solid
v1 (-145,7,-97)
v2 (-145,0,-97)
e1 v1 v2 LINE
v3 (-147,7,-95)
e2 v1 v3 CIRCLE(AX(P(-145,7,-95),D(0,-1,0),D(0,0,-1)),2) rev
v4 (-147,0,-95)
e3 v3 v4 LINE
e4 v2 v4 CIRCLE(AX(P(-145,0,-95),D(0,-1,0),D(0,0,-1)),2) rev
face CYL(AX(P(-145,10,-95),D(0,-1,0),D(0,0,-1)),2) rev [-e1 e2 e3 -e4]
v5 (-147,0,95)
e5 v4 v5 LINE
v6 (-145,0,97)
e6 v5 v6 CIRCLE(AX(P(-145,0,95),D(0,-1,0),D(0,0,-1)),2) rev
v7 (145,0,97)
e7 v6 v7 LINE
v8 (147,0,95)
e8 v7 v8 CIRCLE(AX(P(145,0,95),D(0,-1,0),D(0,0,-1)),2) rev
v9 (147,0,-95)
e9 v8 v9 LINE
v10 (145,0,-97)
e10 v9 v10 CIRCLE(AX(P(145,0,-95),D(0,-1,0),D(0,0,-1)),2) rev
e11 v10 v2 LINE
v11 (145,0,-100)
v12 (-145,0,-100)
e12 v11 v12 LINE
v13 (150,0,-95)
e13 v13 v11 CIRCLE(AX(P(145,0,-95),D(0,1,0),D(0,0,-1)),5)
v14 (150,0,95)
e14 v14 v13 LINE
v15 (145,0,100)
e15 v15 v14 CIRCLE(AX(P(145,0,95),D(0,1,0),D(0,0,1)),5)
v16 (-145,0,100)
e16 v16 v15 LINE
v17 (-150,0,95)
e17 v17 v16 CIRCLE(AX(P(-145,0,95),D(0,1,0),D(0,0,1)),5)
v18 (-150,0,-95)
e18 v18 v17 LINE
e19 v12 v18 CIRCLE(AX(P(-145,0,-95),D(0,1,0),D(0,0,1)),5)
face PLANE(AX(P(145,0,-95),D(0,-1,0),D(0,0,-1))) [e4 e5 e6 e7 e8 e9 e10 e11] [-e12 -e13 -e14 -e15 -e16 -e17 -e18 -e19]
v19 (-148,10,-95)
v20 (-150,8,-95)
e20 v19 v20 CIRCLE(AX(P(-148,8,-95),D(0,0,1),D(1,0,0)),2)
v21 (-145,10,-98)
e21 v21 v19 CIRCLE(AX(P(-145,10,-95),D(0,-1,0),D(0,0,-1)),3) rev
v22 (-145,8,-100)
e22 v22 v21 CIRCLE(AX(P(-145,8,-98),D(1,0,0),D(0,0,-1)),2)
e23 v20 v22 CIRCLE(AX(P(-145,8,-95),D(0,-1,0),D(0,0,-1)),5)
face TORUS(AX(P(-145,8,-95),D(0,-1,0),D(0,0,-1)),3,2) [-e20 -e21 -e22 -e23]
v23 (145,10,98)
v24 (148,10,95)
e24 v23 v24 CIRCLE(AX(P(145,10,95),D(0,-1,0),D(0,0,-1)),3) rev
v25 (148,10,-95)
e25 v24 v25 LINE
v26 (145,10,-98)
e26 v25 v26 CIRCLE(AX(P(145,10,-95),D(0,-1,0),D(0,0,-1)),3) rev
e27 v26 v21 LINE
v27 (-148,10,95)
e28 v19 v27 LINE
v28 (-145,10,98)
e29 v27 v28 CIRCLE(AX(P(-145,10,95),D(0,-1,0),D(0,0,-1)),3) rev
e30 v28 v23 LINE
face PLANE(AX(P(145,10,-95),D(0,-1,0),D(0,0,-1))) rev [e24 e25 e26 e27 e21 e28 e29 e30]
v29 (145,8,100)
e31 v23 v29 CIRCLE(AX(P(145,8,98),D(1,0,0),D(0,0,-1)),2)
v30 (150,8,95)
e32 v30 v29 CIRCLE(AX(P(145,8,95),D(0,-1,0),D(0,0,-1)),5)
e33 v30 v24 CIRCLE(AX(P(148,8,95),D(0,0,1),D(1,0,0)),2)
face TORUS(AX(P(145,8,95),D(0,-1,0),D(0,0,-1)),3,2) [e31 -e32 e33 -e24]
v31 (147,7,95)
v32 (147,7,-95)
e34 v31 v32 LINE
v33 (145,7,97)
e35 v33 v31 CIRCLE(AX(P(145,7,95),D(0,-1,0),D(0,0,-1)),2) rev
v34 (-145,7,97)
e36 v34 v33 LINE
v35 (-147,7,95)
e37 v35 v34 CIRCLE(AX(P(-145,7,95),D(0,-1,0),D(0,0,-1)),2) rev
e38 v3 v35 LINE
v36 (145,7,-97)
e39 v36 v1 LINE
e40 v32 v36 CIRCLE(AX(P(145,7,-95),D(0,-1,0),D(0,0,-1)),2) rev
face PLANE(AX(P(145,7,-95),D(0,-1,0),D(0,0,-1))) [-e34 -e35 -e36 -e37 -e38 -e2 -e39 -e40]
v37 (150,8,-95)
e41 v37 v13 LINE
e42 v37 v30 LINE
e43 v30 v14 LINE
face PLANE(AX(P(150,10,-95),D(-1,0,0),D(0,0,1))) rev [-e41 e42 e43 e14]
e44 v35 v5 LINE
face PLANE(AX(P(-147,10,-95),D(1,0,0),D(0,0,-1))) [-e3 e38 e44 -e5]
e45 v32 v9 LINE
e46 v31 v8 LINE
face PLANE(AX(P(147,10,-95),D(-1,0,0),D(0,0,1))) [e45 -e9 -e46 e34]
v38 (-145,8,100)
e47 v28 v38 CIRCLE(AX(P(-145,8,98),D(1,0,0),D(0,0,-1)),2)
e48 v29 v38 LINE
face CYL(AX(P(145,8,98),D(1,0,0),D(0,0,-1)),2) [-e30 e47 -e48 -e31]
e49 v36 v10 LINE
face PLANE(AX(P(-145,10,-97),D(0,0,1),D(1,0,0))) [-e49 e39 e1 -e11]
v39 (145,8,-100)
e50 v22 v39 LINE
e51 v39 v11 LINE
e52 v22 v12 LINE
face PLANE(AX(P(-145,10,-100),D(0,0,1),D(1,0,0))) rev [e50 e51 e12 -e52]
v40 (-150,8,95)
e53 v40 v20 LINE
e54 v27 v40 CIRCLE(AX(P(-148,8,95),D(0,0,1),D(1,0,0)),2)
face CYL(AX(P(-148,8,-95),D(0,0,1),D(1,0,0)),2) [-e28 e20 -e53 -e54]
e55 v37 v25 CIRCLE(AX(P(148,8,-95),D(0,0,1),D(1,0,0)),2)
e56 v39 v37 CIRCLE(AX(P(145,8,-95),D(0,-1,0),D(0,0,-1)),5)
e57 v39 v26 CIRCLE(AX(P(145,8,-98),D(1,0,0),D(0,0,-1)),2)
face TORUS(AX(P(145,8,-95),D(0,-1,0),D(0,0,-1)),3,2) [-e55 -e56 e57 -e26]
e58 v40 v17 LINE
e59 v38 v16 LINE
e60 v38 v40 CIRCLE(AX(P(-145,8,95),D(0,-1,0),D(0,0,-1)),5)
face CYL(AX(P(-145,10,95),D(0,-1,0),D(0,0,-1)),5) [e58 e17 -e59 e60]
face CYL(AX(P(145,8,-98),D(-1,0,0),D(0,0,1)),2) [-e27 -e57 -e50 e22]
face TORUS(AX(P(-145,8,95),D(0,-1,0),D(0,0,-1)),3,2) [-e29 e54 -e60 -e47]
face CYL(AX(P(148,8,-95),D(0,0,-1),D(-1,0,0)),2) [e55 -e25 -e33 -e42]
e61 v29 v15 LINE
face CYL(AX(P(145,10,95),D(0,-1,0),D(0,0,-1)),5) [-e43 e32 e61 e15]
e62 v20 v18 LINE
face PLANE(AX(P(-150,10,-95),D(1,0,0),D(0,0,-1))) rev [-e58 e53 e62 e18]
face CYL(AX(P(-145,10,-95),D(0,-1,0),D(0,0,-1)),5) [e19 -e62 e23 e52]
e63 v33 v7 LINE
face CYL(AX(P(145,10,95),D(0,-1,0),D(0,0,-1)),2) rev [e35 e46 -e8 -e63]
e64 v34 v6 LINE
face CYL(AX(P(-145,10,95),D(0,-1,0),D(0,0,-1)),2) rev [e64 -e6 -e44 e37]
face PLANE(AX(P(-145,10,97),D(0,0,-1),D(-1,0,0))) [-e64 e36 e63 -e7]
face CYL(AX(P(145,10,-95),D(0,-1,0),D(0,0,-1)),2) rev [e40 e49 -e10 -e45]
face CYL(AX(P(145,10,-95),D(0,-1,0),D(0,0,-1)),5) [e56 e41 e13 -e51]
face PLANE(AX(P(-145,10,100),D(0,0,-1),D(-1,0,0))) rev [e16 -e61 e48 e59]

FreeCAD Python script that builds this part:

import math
import FreeCAD as App
import Part
import Sketcher

V = App.Vector


def edges_at(feature, points):
    """Names of the edges that pass closest to the given points."""
    edges = feature.Shape.Edges
    near = lambda p: min(range(len(edges)), key=lambda i: edges[i].distToShape(Part.Vertex(*p))[0])
    return sorted({f"Edge{near(p) + 1}" for p in points})


def faces_at(feature, points):
    """Names of the faces that lie closest to the given points."""
    faces = feature.Shape.Faces
    near = lambda p: min(range(len(faces)), key=lambda i: faces[i].distToShape(Part.Vertex(*p))[0])
    return sorted({f"Face{near(p) + 1}" for p in points})

doc = App.newDocument("Part")
params = doc.addObject("Spreadsheet::Sheet", "Params")
for row, (alias, value) in enumerate([
    ("sketch1_radius", "5 mm"),
    ("sketch1_width", "290 mm"),
    ("sketch1_height", "190 mm"),
    ("pad1_length", "10 mm"),
    ("thickness_wall", "3 mm"),
    ("fillet_radius", "2 mm"),
], start=1):
    params.set(f"A{row}", alias)
    params.set(f"B{row}", "=" + value)
    params.setAlias(f"B{row}", alias)

body = doc.addObject("PartDesign::Body", "Body")

# Sketch on XZ plane
sketch1 = doc.addObject("Sketcher::SketchObject", "Sketch")
body.addObject(sketch1)
sketch1.AttachmentSupport = (doc.XZ_Plane, [""])
sketch1.MapMode = "FlatFace"
sketch1.addGeometry(Part.LineSegment(V(145, -100, 0), V(-145, -100, 0)), False)
sketch1.addGeometry(Part.ArcOfCircle(Part.Circle(V(-145, -95, 0), V(0, 0, 1), 5), math.radians(180), math.radians(270)), False)
sketch1.addGeometry(Part.LineSegment(V(-150, -95, 0), V(-150, 95, 0)), False)
sketch1.addGeometry(Part.ArcOfCircle(Part.Circle(V(-145, 95, 0), V(0, 0, 1), 5), math.radians(90), math.radians(180)), False)
sketch1.addGeometry(Part.LineSegment(V(-145, 100, 0), V(145, 100, 0)), False)
sketch1.addGeometry(Part.ArcOfCircle(Part.Circle(V(145, 95, 0), V(0, 0, 1), 5), math.radians(0), math.radians(90)), False)
sketch1.addGeometry(Part.LineSegment(V(150, 95, 0), V(150, -95, 0)), False)
sketch1.addGeometry(Part.ArcOfCircle(Part.Circle(V(145, -95, 0), V(0, 0, 1), 5), math.radians(-90), math.radians(0)), False)
sketch1.addConstraint(Sketcher.Constraint("Tangent", 0, 2, 1, 2))
sketch1.addConstraint(Sketcher.Constraint("Tangent", 1, 1, 2, 1))
sketch1.addConstraint(Sketcher.Constraint("Tangent", 2, 2, 3, 2))
sketch1.addConstraint(Sketcher.Constraint("Tangent", 3, 1, 4, 1))
sketch1.addConstraint(Sketcher.Constraint("Tangent", 4, 2, 5, 2))
sketch1.addConstraint(Sketcher.Constraint("Tangent", 5, 1, 6, 1))
sketch1.addConstraint(Sketcher.Constraint("Tangent", 6, 2, 7, 2))
sketch1.addConstraint(Sketcher.Constraint("Tangent", 7, 1, 0, 1))
sketch1.addConstraint(Sketcher.Constraint("Horizontal", 0))
sketch1.addConstraint(Sketcher.Constraint("Vertical", 2))
sketch1.addConstraint(Sketcher.Constraint("Horizontal", 4))
sketch1.addConstraint(Sketcher.Constraint("Vertical", 6))
sketch1.addConstraint(Sketcher.Constraint("Equal", 1, 3))
sketch1.addConstraint(Sketcher.Constraint("Equal", 3, 5))
sketch1.addConstraint(Sketcher.Constraint("Equal", 5, 7))
sketch1.addConstraint(Sketcher.Constraint("Symmetric", 1, 3, 5, 3, -1, 1))
sketch1.addConstraint(Sketcher.Constraint("Radius", 1, 5.0))
sketch1.addConstraint(Sketcher.Constraint("DistanceX", 0, 2, 0, 1, 290.0))
sketch1.addConstraint(Sketcher.Constraint("DistanceY", 2, 1, 2, 2, 190.0))
sketch1.setExpression("Constraints[16]", "Params.sketch1_radius")
sketch1.setExpression("Constraints[17]", "Params.sketch1_width")
sketch1.setExpression("Constraints[18]", "Params.sketch1_height")
pad1 = doc.addObject("PartDesign::Pad", "Pad")
body.addObject(pad1)
pad1.Profile = sketch1
pad1.setExpression("Length", "Params.pad1_length")
pad1.Reversed = True
doc.recompute()

thickness = doc.addObject("PartDesign::Thickness", "Thickness")
body.addObject(thickness)
thickness.Base = (pad1, faces_at(pad1, [(0, 0, 0)]))
thickness.setExpression("Value", "Params.thickness_wall")
thickness.Reversed = True
thickness.Join = "Intersection"
doc.recompute()

fillet = doc.addObject("PartDesign::Fillet", "Fillet")
body.addObject(fillet)
fillet.Base = (thickness, edges_at(thickness, [
    (-148.536, 10, -98.536),
    (-150, 10, 0),
    (-148.536, 10, 98.536),
    (0, 10, 100),
    (148.536, 10, 98.536),
    (150, 10, 0),
    (148.536, 10, -98.536),
    (0, 10, -100),
]))
fillet.setExpression("Radius", "Params.fillet_radius")

doc.recompute()
